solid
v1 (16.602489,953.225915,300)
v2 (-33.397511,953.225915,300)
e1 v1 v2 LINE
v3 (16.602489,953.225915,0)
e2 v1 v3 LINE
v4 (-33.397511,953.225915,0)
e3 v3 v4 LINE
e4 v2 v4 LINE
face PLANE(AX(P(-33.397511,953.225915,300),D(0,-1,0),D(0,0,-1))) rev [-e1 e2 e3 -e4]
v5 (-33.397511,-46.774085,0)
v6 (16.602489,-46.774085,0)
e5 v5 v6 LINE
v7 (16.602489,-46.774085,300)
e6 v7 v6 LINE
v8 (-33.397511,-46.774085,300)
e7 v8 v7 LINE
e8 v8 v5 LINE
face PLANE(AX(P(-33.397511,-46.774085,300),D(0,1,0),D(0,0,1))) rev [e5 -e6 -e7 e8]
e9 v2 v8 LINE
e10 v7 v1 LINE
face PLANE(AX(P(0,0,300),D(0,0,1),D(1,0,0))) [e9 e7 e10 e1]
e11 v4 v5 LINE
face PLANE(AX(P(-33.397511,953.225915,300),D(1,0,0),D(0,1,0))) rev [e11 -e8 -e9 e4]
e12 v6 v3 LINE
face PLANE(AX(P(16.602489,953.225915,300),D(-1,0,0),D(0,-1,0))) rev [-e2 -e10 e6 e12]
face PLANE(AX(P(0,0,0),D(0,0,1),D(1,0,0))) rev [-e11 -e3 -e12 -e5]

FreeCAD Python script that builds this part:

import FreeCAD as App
import Part
import Sketcher
from FreeCAD import Vector

doc = App.newDocument("Part")
body = doc.addObject("PartDesign::Body", "Body")

# Sketch on XY plane
sketch1 = body.newObject("Sketcher::SketchObject", "Sketch")
sketch1.AttachmentSupport = (doc.getObject("XY_Plane"), [""])
sketch1.MapMode = "FlatFace"
sketch1.addGeometry([
    Part.LineSegment(Vector(-33, 953, 0), Vector(-33, -47, 0)),
    Part.LineSegment(Vector(-33, -47, 0), Vector(17, -47, 0)),
    Part.LineSegment(Vector(17, -47, 0), Vector(17, 953, 0)),
    Part.LineSegment(Vector(17, 953, 0), Vector(-33, 953, 0)),
], False)
sketch1.addConstraint([
    Sketcher.Constraint("Coincident", 0, 2, 1, 1),
    Sketcher.Constraint("Coincident", 1, 2, 2, 1),
    Sketcher.Constraint("Coincident", 2, 2, 3, 1),
    Sketcher.Constraint("Coincident", 3, 2, 0, 1),
    Sketcher.Constraint("Vertical", 0),
    Sketcher.Constraint("Horizontal", 1),
    Sketcher.Constraint("Vertical", 2),
    Sketcher.Constraint("Horizontal", 3),
    Sketcher.Constraint("DistanceX", 1, 1, 1, 2, 50.0),
    Sketcher.Constraint("DistanceY", 0, 2, 0, 1, 1000.0),
    Sketcher.Constraint("DistanceX", 0, 2, -1, 1, 33.397511),
    Sketcher.Constraint("DistanceY", 0, 2, -1, 1, 46.774085),
])
pad1 = body.newObject("PartDesign::Pad", "Pad")
pad1.Profile = sketch1
pad1.Length = 300

doc.recompute()
